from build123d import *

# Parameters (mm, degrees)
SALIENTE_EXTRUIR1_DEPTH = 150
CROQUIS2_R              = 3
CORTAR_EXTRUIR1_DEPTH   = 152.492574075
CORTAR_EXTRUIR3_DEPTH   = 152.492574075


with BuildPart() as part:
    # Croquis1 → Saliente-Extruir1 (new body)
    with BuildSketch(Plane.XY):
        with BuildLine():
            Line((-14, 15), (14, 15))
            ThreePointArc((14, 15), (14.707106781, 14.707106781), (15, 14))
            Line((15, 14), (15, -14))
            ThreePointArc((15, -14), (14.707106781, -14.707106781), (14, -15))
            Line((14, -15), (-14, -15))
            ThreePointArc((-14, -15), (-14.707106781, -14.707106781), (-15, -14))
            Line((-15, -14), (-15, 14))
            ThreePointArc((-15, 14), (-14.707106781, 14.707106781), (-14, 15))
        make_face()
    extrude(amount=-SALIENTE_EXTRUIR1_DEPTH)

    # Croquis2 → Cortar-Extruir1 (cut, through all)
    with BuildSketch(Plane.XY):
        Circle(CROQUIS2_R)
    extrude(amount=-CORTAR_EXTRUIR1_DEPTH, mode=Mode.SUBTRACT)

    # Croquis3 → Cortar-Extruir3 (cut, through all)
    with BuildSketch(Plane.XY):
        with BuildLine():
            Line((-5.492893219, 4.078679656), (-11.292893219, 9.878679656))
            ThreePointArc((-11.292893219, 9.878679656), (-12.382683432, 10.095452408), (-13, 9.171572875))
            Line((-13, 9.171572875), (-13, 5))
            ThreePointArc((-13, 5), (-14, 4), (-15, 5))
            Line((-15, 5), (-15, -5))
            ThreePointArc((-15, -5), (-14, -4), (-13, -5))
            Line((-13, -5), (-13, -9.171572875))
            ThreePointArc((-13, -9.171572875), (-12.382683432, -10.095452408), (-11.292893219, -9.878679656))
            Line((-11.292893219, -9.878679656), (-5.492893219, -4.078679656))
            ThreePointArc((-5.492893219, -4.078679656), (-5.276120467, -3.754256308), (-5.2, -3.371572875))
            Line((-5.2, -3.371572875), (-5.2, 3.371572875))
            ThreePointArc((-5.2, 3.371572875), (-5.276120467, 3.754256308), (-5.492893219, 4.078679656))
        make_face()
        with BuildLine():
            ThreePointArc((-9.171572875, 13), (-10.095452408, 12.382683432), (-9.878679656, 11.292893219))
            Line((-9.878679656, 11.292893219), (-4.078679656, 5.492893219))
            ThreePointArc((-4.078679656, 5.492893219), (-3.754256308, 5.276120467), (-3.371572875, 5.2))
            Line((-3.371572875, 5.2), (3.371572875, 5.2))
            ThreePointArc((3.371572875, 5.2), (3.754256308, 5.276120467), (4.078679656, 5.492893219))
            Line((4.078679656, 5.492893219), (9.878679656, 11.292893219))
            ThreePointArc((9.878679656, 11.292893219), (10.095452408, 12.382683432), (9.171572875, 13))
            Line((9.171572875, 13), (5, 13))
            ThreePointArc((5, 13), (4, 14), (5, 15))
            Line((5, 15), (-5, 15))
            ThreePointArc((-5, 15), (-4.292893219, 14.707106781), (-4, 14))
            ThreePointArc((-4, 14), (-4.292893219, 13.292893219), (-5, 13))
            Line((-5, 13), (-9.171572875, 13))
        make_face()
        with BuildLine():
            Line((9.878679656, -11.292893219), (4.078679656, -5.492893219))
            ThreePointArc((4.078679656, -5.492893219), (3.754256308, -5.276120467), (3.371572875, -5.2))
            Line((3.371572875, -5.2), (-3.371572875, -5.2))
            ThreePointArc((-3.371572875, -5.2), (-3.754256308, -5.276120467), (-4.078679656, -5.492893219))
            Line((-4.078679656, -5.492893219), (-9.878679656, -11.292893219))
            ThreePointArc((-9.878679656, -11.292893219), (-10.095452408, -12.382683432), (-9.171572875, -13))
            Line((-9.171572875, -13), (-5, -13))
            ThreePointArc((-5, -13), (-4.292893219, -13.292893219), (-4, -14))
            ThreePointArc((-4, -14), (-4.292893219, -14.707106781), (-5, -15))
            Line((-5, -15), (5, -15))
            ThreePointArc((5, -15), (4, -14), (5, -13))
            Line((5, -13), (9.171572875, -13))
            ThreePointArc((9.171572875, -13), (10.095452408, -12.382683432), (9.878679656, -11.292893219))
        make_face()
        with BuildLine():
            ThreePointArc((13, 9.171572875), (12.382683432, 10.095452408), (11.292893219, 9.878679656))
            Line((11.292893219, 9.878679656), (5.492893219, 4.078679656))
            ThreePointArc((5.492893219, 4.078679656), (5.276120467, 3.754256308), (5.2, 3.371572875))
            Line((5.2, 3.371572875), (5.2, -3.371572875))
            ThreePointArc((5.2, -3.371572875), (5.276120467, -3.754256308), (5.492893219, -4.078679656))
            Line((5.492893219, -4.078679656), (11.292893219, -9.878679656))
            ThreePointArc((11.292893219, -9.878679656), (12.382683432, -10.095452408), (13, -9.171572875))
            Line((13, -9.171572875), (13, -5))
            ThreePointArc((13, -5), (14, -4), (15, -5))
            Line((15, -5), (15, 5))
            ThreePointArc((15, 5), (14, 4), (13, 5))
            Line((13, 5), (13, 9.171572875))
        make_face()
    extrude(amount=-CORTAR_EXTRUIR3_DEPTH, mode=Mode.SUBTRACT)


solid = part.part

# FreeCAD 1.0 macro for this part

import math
import FreeCAD as App
import Part
import Sketcher

doc = App.newDocument("Part")
body = doc.addObject("PartDesign::Body", "Body")

# Sketch on XY plane
sketch1 = body.newObject("Sketcher::SketchObject", "Sketch")
sketch1.AttachmentSupport = (doc.getObject("XY_Plane"), [""])
sketch1.MapMode = "FlatFace"
sketch1.addGeometry([
    Part.LineSegment(App.Vector(14, 15, 0), App.Vector(-14, 15, 0)),  # 0
    Part.ArcOfCircle(Part.Circle(App.Vector(-14, 14, 0), App.Vector(0, 0, 1), 1), math.radians(90), math.radians(180)),  # 1
    Part.LineSegment(App.Vector(-15, 14, 0), App.Vector(-15, -14, 0)),  # 2
    Part.ArcOfCircle(Part.Circle(App.Vector(-14, -14, 0), App.Vector(0, 0, 1), 1), math.radians(-180), math.radians(-90)),  # 3
    Part.LineSegment(App.Vector(-14, -15, 0), App.Vector(14, -15, 0)),  # 4
    Part.ArcOfCircle(Part.Circle(App.Vector(14, -14, 0), App.Vector(0, 0, 1), 1), math.radians(-90), math.radians(0)),  # 5
    Part.LineSegment(App.Vector(15, -14, 0), App.Vector(15, 14, 0)),  # 6
    Part.ArcOfCircle(Part.Circle(App.Vector(14, 14, 0), App.Vector(0, 0, 1), 1), math.radians(0), math.radians(90)),  # 7
], False)
sketch1.addConstraint([
    Sketcher.Constraint("Tangent", 0, 2, 1, 1),
    Sketcher.Constraint("Tangent", 1, 2, 2, 1),
    Sketcher.Constraint("Tangent", 2, 2, 3, 1),
    Sketcher.Constraint("Tangent", 3, 2, 4, 1),
    Sketcher.Constraint("Tangent", 4, 2, 5, 1),
    Sketcher.Constraint("Tangent", 5, 2, 6, 1),
    Sketcher.Constraint("Tangent", 6, 2, 7, 1),
    Sketcher.Constraint("Tangent", 7, 2, 0, 1),
    Sketcher.Constraint("Horizontal", 0),
    Sketcher.Constraint("Vertical", 2),
    Sketcher.Constraint("Horizontal", 4),
    Sketcher.Constraint("Vertical", 6),
    Sketcher.Constraint("Equal", 1, 3),
    Sketcher.Constraint("Equal", 3, 5),
    Sketcher.Constraint("Equal", 5, 7),
    Sketcher.Constraint("Symmetric", 1, 3, 5, 3, -1, 1),
    Sketcher.Constraint("Equal", 4, 2),
    Sketcher.Constraint("Radius", 1, 1.0),
    Sketcher.Constraint("DistanceX", 0, 2, 0, 1, 28.0),
])
pad1 = body.newObject("PartDesign::Pad", "Pad")
pad1.Profile = sketch1
pad1.Length = 150
pad1.Reversed = True

# Sketch on XY plane
sketch2 = body.newObject("Sketcher::SketchObject", "Sketch001")
sketch2.AttachmentSupport = (doc.getObject("XY_Plane"), [""])
sketch2.MapMode = "FlatFace"
sketch2.addGeometry(Part.Circle(App.Vector(0, 0, 0), App.Vector(0, 0, 1), 3), False)
sketch2.addConstraint([
    Sketcher.Constraint("Coincident", 0, 3, -1, 1),
    Sketcher.Constraint("Diameter", 0, 6.0),
])
pocket1 = body.newObject("PartDesign::Pocket", "Pocket")
pocket1.Profile = sketch2
pocket1.Type = "ThroughAll"

# Sketch on XY plane
sketch3 = body.newObject("Sketcher::SketchObject", "Sketch002")
sketch3.AttachmentSupport = (doc.getObject("XY_Plane"), [""])
sketch3.MapMode = "FlatFace"
sketch3.addGeometry([
    Part.LineSegment(App.Vector(-5.5, 4.1, 0), App.Vector(-11.3, 9.9, 0)),  # 0
    Part.ArcOfCircle(Part.Circle(App.Vector(-12, 9.2, 0), App.Vector(0, 0, 1), 1), math.radians(45), math.radians(180)),  # 1
    Part.LineSegment(App.Vector(-13, 9.2, 0), App.Vector(-13, 5, 0)),  # 2
    Part.ArcOfCircle(Part.Circle(App.Vector(-14, 5, 0), App.Vector(0, 0, 1), 1), math.radians(180), math.radians(360)),  # 3
    Part.LineSegment(App.Vector(-15, 5, 0), App.Vector(-15, -5, 0)),  # 4
    Part.ArcOfCircle(Part.Circle(App.Vector(-14, -5, 0), App.Vector(0, 0, 1), 1), math.radians(0), math.radians(180)),  # 5
    Part.LineSegment(App.Vector(-13, -5, 0), App.Vector(-13, -9.2, 0)),  # 6
    Part.ArcOfCircle(Part.Circle(App.Vector(-12, -9.2, 0), App.Vector(0, 0, 1), 1), math.radians(180), math.radians(315)),  # 7
    Part.LineSegment(App.Vector(-11.3, -9.9, 0), App.Vector(-5.5, -4.1, 0)),  # 8
    Part.ArcOfCircle(Part.Circle(App.Vector(-6.2, -3.4, 0), App.Vector(0, 0, 1), 1), math.radians(-45), math.radians(0)),  # 9
    Part.LineSegment(App.Vector(-5.2, -3.4, 0), App.Vector(-5.2, 3.4, 0)),  # 10
    Part.ArcOfCircle(Part.Circle(App.Vector(-6.2, 3.4, 0), App.Vector(0, 0, 1), 1), math.radians(0), math.radians(45)),  # 11
    Part.ArcOfCircle(Part.Circle(App.Vector(-9.2, 12, 0), App.Vector(0, 0, 1), 1), math.radians(90), math.radians(225)),  # 12
    Part.LineSegment(App.Vector(-9.9, 11.3, 0), App.Vector(-4.1, 5.5, 0)),  # 13
    Part.ArcOfCircle(Part.Circle(App.Vector(-3.4, 6.2, 0), App.Vector(0, 0, 1), 1), math.radians(-135), math.radians(-90)),  # 14
    Part.LineSegment(App.Vector(-3.4, 5.2, 0), App.Vector(3.4, 5.2, 0)),  # 15
    Part.ArcOfCircle(Part.Circle(App.Vector(3.4, 6.2, 0), App.Vector(0, 0, 1), 1), math.radians(-90), math.radians(-45)),  # 16
    Part.LineSegment(App.Vector(4.1, 5.5, 0), App.Vector(9.9, 11.3, 0)),  # 17
    Part.ArcOfCircle(Part.Circle(App.Vector(9.2, 12, 0), App.Vector(0, 0, 1), 1), math.radians(-45), math.radians(90)),  # 18
    Part.LineSegment(App.Vector(9.2, 13, 0), App.Vector(5, 13, 0)),  # 19
    Part.ArcOfCircle(Part.Circle(App.Vector(5, 14, 0), App.Vector(0, 0, 1), 1), math.radians(90), math.radians(270)),  # 20
    Part.LineSegment(App.Vector(5, 15, 0), App.Vector(-5, 15, 0)),  # 21
    Part.ArcOfCircle(Part.Circle(App.Vector(-5, 14, 0), App.Vector(0, 0, 1), 1), math.radians(0), math.radians(90)),  # 22
    Part.ArcOfCircle(Part.Circle(App.Vector(-5, 14, 0), App.Vector(0, 0, 1), 1), math.radians(-90), math.radians(0)),  # 23
    Part.LineSegment(App.Vector(-5, 13, 0), App.Vector(-9.2, 13, 0)),  # 24
    Part.LineSegment(App.Vector(9.9, -11.3, 0), App.Vector(4.1, -5.5, 0)),  # 25
    Part.ArcOfCircle(Part.Circle(App.Vector(3.4, -6.2, 0), App.Vector(0, 0, 1), 1), math.radians(45), math.radians(90)),  # 26
    Part.LineSegment(App.Vector(3.4, -5.2, 0), App.Vector(-3.4, -5.2, 0)),  # 27
    Part.ArcOfCircle(Part.Circle(App.Vector(-3.4, -6.2, 0), App.Vector(0, 0, 1), 1), math.radians(90), math.radians(135)),  # 28
    Part.LineSegment(App.Vector(-4.1, -5.5, 0), App.Vector(-9.9, -11.3, 0)),  # 29
    Part.ArcOfCircle(Part.Circle(App.Vector(-9.2, -12, 0), App.Vector(0, 0, 1), 1), math.radians(135), math.radians(270)),  # 30
    Part.LineSegment(App.Vector(-9.2, -13, 0), App.Vector(-5, -13, 0)),  # 31
    Part.ArcOfCircle(Part.Circle(App.Vector(-5, -14, 0), App.Vector(0, 0, 1), 1), math.radians(0), math.radians(90)),  # 32
    Part.ArcOfCircle(Part.Circle(App.Vector(-5, -14, 0), App.Vector(0, 0, 1), 1), math.radians(-90), math.radians(0)),  # 33
    Part.LineSegment(App.Vector(-5, -15, 0), App.Vector(5, -15, 0)),  # 34
    Part.ArcOfCircle(Part.Circle(App.Vector(5, -14, 0), App.Vector(0, 0, 1), 1), math.radians(90), math.radians(270)),  # 35
    Part.LineSegment(App.Vector(5, -13, 0), App.Vector(9.2, -13, 0)),  # 36
    Part.ArcOfCircle(Part.Circle(App.Vector(9.2, -12, 0), App.Vector(0, 0, 1), 1), math.radians(-90), math.radians(45)),  # 37
    Part.ArcOfCircle(Part.Circle(App.Vector(12, 9.2, 0), App.Vector(0, 0, 1), 1), math.radians(0), math.radians(135)),  # 38
    Part.LineSegment(App.Vector(11.3, 9.9, 0), App.Vector(5.5, 4.1, 0)),  # 39
    Part.ArcOfCircle(Part.Circle(App.Vector(6.2, 3.4, 0), App.Vector(0, 0, 1), 1), math.radians(135), math.radians(180)),  # 40
    Part.LineSegment(App.Vector(5.2, 3.4, 0), App.Vector(5.2, -3.4, 0)),  # 41
    Part.ArcOfCircle(Part.Circle(App.Vector(6.2, -3.4, 0), App.Vector(0, 0, 1), 1), math.radians(180), math.radians(225)),  # 42
    Part.LineSegment(App.Vector(5.5, -4.1, 0), App.Vector(11.3, -9.9, 0)),  # 43
    Part.ArcOfCircle(Part.Circle(App.Vector(12, -9.2, 0), App.Vector(0, 0, 1), 1), math.radians(-135), math.radians(0)),  # 44
    Part.LineSegment(App.Vector(13, -9.2, 0), App.Vector(13, -5, 0)),  # 45
    Part.ArcOfCircle(Part.Circle(App.Vector(14, -5, 0), App.Vector(0, 0, 1), 1), math.radians(0), math.radians(180)),  # 46
    Part.LineSegment(App.Vector(15, -5, 0), App.Vector(15, 5, 0)),  # 47
    Part.ArcOfCircle(Part.Circle(App.Vector(14, 5, 0), App.Vector(0, 0, 1), 1), math.radians(180), math.radians(360)),  # 48
    Part.LineSegment(App.Vector(13, 5, 0), App.Vector(13, 9.2, 0)),  # 49
], False)
sketch3.addConstraint([
    Sketcher.Constraint("Tangent", 0, 2, 1, 1),
    Sketcher.Constraint("Tangent", 1, 2, 2, 1),
    Sketcher.Constraint("Tangent", 2, 2, 3, 2),
    Sketcher.Constraint("Tangent", 3, 1, 4, 1),
    Sketcher.Constraint("Tangent", 4, 2, 5, 2),
    Sketcher.Constraint("Tangent", 5, 1, 6, 1),
    Sketcher.Constraint("Tangent", 6, 2, 7, 1),
    Sketcher.Constraint("Tangent", 7, 2, 8, 1),
    Sketcher.Constraint("Tangent", 8, 2, 9, 1),
    Sketcher.Constraint("Tangent", 9, 2, 10, 1),
    Sketcher.Constraint("Tangent", 10, 2, 11, 1),
    Sketcher.Constraint("Tangent", 11, 2, 0, 1),
    Sketcher.Constraint("Tangent", 12, 2, 13, 1),
    Sketcher.Constraint("Tangent", 13, 2, 14, 1),
    Sketcher.Constraint("Tangent", 14, 2, 15, 1),
    Sketcher.Constraint("Tangent", 15, 2, 16, 1),
    Sketcher.Constraint("Tangent", 16, 2, 17, 1),
    Sketcher.Constraint("Tangent", 17, 2, 18, 1),
    Sketcher.Constraint("Tangent", 18, 2, 19, 1),
    Sketcher.Constraint("Tangent", 19, 2, 20, 2),
    Sketcher.Constraint("Tangent", 20, 1, 21, 1),
    Sketcher.Constraint("Tangent", 21, 2, 22, 2),
    Sketcher.Constraint("Tangent", 22, 1, 23, 2),
    Sketcher.Constraint("Tangent", 23, 1, 24, 1),
    Sketcher.Constraint("Tangent", 24, 2, 12, 1),
    Sketcher.Constraint("Tangent", 25, 2, 26, 1),
    Sketcher.Constraint("Tangent", 26, 2, 27, 1),
    Sketcher.Constraint("Tangent", 27, 2, 28, 1),
    Sketcher.Constraint("Tangent", 28, 2, 29, 1),
    Sketcher.Constraint("Tangent", 29, 2, 30, 1),
    Sketcher.Constraint("Tangent", 30, 2, 31, 1),
    Sketcher.Constraint("Tangent", 31, 2, 32, 2),
    Sketcher.Constraint("Tangent", 32, 1, 33, 2),
    Sketcher.Constraint("Tangent", 33, 1, 34, 1),
    Sketcher.Constraint("Tangent", 34, 2, 35, 2),
    Sketcher.Constraint("Tangent", 35, 1, 36, 1),
    Sketcher.Constraint("Tangent", 36, 2, 37, 1),
    Sketcher.Constraint("Tangent", 37, 2, 25, 1),
    Sketcher.Constraint("Tangent", 38, 2, 39, 1),
    Sketcher.Constraint("Tangent", 39, 2, 40, 1),
    Sketcher.Constraint("Tangent", 40, 2, 41, 1),
    Sketcher.Constraint("Tangent", 41, 2, 42, 1),
    Sketcher.Constraint("Tangent", 42, 2, 43, 1),
    Sketcher.Constraint("Tangent", 43, 2, 44, 1),
    Sketcher.Constraint("Tangent", 44, 2, 45, 1),
    Sketcher.Constraint("Tangent", 45, 2, 46, 2),
    Sketcher.Constraint("Tangent", 46, 1, 47, 1),
    Sketcher.Constraint("Tangent", 47, 2, 48, 2),
    Sketcher.Constraint("Tangent", 48, 1, 49, 1),
    Sketcher.Constraint("Tangent", 49, 2, 38, 1),
    Sketcher.Constraint("Vertical", 2),
    Sketcher.Constraint("Vertical", 4),
    Sketcher.Constraint("Vertical", 6),
    Sketcher.Constraint("Vertical", 10),
    Sketcher.Constraint("Horizontal", 15),
    Sketcher.Constraint("Horizontal", 19),
    Sketcher.Constraint("Horizontal", 21),
    Sketcher.Constraint("Horizontal", 24),
    Sketcher.Constraint("Horizontal", 27),
    Sketcher.Constraint("Horizontal", 31),
    Sketcher.Constraint("Horizontal", 34),
    Sketcher.Constraint("Horizontal", 36),
    Sketcher.Constraint("Vertical", 41),
    Sketcher.Constraint("Vertical", 45),
    Sketcher.Constraint("Vertical", 47),
    Sketcher.Constraint("Vertical", 49),
    Sketcher.Constraint("Equal", 1, 3),
    Sketcher.Constraint("Equal", 3, 5),
    Sketcher.Constraint("Equal", 5, 7),
    Sketcher.Constraint("Equal", 7, 9),
    Sketcher.Constraint("Equal", 9, 11),
    Sketcher.Constraint("Equal", 11, 12),
    Sketcher.Constraint("Equal", 12, 14),
    Sketcher.Constraint("Equal", 14, 16),
    Sketcher.Constraint("Equal", 16, 18),
    Sketcher.Constraint("Equal", 18, 20),
    Sketcher.Constraint("Equal", 20, 22),
    Sketcher.Constraint("Equal", 22, 23),
    Sketcher.Constraint("Equal", 23, 26),
    Sketcher.Constraint("Equal", 26, 28),
    Sketcher.Constraint("Equal", 28, 30),
    Sketcher.Constraint("Equal", 30, 32),
    Sketcher.Constraint("Equal", 32, 33),
    Sketcher.Constraint("Equal", 33, 35),
    Sketcher.Constraint("Equal", 35, 37),
    Sketcher.Constraint("Equal", 37, 38),
    Sketcher.Constraint("Equal", 38, 40),
    Sketcher.Constraint("Equal", 40, 42),
    Sketcher.Constraint("Equal", 42, 44),
    Sketcher.Constraint("Equal", 44, 46),
    Sketcher.Constraint("Equal", 46, 48),
    Sketcher.Constraint("Symmetric", 14, 3, 26, 3, -1, 1),
    Sketcher.Constraint("Symmetric", 18, 3, 30, 3, -1, 1),
    Sketcher.Constraint("Symmetric", 7, 3, 38, 3, -1, 1),
    Sketcher.Constraint("Symmetric", 9, 3, 40, 3, -1, 1),
    Sketcher.Constraint("Symmetric", 11, 2, 42, 2, -1, 1),
    Sketcher.Constraint("Symmetric", 13, 2, 16, 2, -2),
    Sketcher.Constraint("Symmetric", 25, 2, 28, 2, -2),
    Sketcher.Constraint("Symmetric", 0, 2, 38, 2, -2),
    Sketcher.Constraint("Symmetric", 22, 1, 32, 1, -1),
    Sketcher.Constraint("Perpendicular", 0, 8),
    Sketcher.Constraint("Perpendicular", 8, 13),
    Sketcher.Constraint("Horizontal", 5, 3, 46, 3),
    Sketcher.Constraint("Horizontal", 3, 3, 48, 3),
    Sketcher.Constraint("Horizontal", 23, 3, 22, 1),
    Sketcher.Constraint("Vertical", 20, 3, 35, 3),
    Sketcher.Constraint("Equal", 19, 24),
    Sketcher.Constraint("Equal", 36, 2),
    Sketcher.Constraint("Equal", 34, 4),
    Sketcher.Constraint("Equal", 2, 6),
    Sketcher.Constraint("Equal", 27, 10),
    Sketcher.Constraint("Radius", 1, 1.0),
    Sketcher.Constraint("DistanceX", 21, 2, 21, 1, 10.0),
    Sketcher.Constraint("DistanceX", 1, 3, -1, 1, 12.0),
    Sketcher.Constraint("DistanceY", -1, 1, 12, 3, 12.0),
    Sketcher.Constraint("DistanceX", 9, 3, -1, 1, 6.2),
    Sketcher.Constraint("DistanceX", 15, 1, 15, 2, 6.743146),
])
pocket2 = body.newObject("PartDesign::Pocket", "Pocket001")
pocket2.Profile = sketch3
pocket2.Type = "ThroughAll"

doc.recompute()
